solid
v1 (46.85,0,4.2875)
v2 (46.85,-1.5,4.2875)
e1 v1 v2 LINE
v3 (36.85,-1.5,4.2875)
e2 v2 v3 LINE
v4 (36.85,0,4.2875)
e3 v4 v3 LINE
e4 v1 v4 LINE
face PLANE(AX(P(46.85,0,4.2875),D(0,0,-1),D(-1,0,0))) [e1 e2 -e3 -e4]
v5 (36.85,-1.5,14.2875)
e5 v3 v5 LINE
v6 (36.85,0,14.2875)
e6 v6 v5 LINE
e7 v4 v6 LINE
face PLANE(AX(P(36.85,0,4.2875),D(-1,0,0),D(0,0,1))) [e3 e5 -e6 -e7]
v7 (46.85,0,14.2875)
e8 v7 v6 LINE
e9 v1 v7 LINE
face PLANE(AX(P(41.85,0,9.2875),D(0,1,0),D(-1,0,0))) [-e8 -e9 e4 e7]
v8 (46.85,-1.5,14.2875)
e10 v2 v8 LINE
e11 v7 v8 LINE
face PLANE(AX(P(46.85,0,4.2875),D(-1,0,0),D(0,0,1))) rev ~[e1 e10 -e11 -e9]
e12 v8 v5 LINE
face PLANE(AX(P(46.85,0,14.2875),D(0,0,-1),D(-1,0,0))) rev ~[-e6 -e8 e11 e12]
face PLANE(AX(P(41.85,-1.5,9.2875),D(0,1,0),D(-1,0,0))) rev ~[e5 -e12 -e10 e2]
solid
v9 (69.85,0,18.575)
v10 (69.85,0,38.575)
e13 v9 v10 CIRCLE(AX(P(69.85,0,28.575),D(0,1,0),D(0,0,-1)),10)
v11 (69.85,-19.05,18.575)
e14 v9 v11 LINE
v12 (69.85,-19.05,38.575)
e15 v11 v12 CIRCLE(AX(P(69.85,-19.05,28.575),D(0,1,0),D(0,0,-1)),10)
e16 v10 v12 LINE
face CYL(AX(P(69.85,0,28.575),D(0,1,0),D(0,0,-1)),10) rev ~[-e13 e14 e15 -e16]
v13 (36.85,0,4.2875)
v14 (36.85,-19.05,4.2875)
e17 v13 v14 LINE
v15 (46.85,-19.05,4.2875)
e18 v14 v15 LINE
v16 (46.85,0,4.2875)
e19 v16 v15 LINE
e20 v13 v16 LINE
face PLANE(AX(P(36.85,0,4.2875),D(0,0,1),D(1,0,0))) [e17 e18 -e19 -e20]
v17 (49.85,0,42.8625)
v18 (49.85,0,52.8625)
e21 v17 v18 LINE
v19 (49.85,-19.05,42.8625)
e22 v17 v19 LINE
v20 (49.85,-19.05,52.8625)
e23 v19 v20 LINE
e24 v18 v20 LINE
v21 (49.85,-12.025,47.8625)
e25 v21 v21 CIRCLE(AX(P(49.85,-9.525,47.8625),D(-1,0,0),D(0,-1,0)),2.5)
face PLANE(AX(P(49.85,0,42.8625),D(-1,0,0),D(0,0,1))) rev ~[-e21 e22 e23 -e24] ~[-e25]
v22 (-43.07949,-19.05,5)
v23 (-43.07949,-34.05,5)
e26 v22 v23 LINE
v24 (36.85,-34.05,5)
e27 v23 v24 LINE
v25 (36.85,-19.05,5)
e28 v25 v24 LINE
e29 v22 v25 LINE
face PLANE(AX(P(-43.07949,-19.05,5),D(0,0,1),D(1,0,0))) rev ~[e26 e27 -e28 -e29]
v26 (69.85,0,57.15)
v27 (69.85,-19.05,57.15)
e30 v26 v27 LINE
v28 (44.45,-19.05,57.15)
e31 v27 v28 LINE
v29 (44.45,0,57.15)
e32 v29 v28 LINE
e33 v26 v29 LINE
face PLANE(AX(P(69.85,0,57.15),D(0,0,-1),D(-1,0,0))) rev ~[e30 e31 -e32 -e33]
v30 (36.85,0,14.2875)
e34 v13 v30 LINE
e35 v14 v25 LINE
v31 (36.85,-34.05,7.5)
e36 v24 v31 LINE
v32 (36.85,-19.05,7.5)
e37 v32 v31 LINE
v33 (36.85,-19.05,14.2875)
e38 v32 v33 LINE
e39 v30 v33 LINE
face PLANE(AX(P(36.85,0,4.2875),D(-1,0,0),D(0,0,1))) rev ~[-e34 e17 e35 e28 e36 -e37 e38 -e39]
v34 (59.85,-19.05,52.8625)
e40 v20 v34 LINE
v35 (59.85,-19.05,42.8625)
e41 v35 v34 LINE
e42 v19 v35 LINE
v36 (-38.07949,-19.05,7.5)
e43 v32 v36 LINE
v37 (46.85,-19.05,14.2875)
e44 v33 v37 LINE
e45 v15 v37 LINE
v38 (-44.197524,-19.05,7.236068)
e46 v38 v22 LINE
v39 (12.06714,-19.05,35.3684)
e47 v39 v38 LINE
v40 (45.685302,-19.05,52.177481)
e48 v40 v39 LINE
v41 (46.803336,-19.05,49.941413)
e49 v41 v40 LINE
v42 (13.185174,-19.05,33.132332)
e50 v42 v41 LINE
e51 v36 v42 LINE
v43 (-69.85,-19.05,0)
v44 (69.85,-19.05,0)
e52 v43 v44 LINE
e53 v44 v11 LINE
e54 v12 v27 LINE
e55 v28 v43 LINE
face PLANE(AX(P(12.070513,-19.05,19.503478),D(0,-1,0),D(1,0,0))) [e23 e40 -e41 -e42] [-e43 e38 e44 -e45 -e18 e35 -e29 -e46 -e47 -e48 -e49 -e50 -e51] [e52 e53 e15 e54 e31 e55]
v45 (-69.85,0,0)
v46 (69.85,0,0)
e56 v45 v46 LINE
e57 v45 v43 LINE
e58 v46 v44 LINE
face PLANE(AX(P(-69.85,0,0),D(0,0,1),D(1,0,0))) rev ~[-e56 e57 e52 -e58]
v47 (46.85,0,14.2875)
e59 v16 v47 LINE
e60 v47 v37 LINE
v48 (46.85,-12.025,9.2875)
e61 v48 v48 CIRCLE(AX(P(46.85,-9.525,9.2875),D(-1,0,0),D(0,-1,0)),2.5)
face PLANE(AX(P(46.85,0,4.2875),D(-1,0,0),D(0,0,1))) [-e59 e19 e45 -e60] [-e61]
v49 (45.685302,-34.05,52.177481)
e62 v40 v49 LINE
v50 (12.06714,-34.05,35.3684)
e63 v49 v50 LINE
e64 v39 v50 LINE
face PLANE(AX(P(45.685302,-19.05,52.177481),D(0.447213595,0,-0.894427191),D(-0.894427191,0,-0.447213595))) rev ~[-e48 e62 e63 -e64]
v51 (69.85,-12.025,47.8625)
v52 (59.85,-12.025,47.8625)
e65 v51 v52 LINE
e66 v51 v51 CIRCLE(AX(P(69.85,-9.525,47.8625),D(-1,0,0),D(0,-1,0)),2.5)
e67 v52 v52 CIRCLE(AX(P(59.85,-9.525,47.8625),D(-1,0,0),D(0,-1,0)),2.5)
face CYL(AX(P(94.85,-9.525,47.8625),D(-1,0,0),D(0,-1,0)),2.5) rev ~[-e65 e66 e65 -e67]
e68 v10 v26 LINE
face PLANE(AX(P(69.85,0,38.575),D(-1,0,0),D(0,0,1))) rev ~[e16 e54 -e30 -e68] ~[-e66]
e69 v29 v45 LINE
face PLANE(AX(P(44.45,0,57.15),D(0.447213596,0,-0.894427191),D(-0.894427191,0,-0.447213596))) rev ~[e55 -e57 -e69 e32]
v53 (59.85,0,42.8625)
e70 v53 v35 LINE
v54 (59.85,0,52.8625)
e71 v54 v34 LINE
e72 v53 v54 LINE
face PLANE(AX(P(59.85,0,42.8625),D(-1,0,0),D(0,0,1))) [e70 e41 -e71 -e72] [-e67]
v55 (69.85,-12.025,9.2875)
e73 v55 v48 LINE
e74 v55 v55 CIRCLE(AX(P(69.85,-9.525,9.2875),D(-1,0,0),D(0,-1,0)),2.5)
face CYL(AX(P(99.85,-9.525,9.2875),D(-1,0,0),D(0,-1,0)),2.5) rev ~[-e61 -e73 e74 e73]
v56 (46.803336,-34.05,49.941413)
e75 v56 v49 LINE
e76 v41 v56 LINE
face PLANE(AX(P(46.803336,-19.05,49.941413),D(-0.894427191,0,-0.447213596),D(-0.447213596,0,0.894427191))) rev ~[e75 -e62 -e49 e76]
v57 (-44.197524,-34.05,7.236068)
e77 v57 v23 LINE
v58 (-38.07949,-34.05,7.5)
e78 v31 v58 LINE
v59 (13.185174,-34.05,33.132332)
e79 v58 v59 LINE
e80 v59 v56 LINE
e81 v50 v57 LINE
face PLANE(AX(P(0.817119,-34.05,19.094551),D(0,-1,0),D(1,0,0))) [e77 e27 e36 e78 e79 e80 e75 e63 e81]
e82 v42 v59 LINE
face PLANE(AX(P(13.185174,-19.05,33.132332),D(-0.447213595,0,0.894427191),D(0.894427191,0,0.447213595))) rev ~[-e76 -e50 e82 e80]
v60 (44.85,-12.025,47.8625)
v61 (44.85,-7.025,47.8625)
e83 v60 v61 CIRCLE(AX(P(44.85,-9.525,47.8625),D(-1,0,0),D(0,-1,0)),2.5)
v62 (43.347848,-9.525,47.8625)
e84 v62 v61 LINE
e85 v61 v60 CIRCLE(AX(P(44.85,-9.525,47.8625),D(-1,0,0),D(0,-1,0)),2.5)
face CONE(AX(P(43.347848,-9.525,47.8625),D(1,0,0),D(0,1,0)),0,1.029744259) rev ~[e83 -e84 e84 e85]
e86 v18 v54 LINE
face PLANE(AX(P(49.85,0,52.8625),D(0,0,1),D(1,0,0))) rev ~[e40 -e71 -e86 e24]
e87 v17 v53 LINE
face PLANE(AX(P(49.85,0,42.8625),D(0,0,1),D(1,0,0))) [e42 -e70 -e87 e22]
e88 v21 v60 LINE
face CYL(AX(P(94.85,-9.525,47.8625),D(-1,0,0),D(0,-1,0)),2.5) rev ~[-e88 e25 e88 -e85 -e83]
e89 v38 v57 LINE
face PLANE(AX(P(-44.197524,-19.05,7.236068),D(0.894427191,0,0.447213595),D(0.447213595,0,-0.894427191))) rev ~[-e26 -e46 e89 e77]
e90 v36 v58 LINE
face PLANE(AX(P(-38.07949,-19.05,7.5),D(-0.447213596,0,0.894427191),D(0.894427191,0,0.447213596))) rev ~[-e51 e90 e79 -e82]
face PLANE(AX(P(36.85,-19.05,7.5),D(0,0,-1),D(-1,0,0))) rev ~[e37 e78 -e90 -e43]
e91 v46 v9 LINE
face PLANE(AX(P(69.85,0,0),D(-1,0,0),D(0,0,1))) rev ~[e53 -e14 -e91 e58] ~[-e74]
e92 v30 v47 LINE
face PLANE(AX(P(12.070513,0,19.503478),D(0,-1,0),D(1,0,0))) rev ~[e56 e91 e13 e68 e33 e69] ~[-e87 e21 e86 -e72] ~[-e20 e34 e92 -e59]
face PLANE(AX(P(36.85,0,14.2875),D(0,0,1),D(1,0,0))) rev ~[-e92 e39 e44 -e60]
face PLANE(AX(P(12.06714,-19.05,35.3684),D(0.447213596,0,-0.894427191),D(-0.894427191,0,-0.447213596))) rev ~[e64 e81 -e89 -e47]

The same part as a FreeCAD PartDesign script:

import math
import FreeCAD as App
import Part
import Sketcher
Q = App.Units.Quantity

doc = App.newDocument("Part")
params = doc.addObject("Spreadsheet::Sheet", "Params")
for row, (alias, value) in enumerate([
    ("sketch1_radius", "10 mm"),
    ("sketch1_width", "10 mm"),
    ("sketch1_width2", "139.7 mm"),
    ("sketch1_width3", "25.4 mm"),
    ("pad1_length", "19.05 mm"),
    ("sketch2_height", "2.5 mm"),
    ("sketch2_length", "2.5 mm"),
    ("pad2_length", "15 mm"),
    ("sketch3_diameter", "5 mm"),
    ("hole_diameter", "5 mm"),
    ("hole_depth", "30 mm"),
    ("sketch4_diameter", "5 mm"),
    ("hole2_diameter", "5 mm"),
    ("hole2_depth", "25 mm"),
    ("sketch5_width", "10 mm"),
    ("pad3_length", "1.5 mm"),
], start=1):
    params.set(f"A{row}", alias)
    params.set(f"B{row}", "=" + value)
    params.setAlias(f"B{row}", alias)

body = doc.addObject("PartDesign::Body", "Body")

sketch1 = body.newObject("Sketcher::SketchObject", "Sketch")
sketch1.AttachmentSupport = (doc.getObject("XZ_Plane"), [""])
sketch1.MapMode = "FlatFace"
sketch1.addGeometry(Part.LineSegment(App.Vector(44, 57, 0), App.Vector(-70, 0, 0)), False)
sketch1.addGeometry(Part.LineSegment(App.Vector(-70, 0, 0), App.Vector(70, 0, 0)), False)
sketch1.addGeometry(Part.LineSegment(App.Vector(70, 0, 0), App.Vector(70, 19, 0)), False)
sketch1.addGeometry(Part.ArcOfCircle(Part.Circle(App.Vector(70, 29, 0), App.Vector(0, 0, 1), 10), math.radians(90), math.radians(270)), False)
sketch1.addGeometry(Part.LineSegment(App.Vector(70, 39, 0), App.Vector(70, 57, 0)), False)
sketch1.addGeometry(Part.LineSegment(App.Vector(70, 57, 0), App.Vector(44, 57, 0)), False)
sketch1.addGeometry(Part.LineSegment(App.Vector(47, 4, 0), App.Vector(37, 4, 0)), False)
sketch1.addGeometry(Part.LineSegment(App.Vector(37, 4, 0), App.Vector(37, 14, 0)), False)
sketch1.addGeometry(Part.LineSegment(App.Vector(37, 14, 0), App.Vector(47, 14, 0)), False)
sketch1.addGeometry(Part.LineSegment(App.Vector(47, 14, 0), App.Vector(47, 4, 0)), False)
sketch1.addGeometry(Part.LineSegment(App.Vector(60, 43, 0), App.Vector(50, 43, 0)), False)
sketch1.addGeometry(Part.LineSegment(App.Vector(50, 43, 0), App.Vector(50, 53, 0)), False)
sketch1.addGeometry(Part.LineSegment(App.Vector(50, 53, 0), App.Vector(60, 53, 0)), False)
sketch1.addGeometry(Part.LineSegment(App.Vector(60, 53, 0), App.Vector(60, 43, 0)), False)
sketch1.addConstraint(Sketcher.Constraint("Coincident", 0, 2, 1, 1))
sketch1.addConstraint(Sketcher.Constraint("Coincident", 1, 2, 2, 1))
sketch1.addConstraint(Sketcher.Constraint("Coincident", 2, 2, 3, 2))
sketch1.addConstraint(Sketcher.Constraint("Coincident", 3, 1, 4, 1))
sketch1.addConstraint(Sketcher.Constraint("Coincident", 4, 2, 5, 1))
sketch1.addConstraint(Sketcher.Constraint("Coincident", 5, 2, 0, 1))
sketch1.addConstraint(Sketcher.Constraint("Coincident", 6, 2, 7, 1))
sketch1.addConstraint(Sketcher.Constraint("Coincident", 7, 2, 8, 1))
sketch1.addConstraint(Sketcher.Constraint("Coincident", 8, 2, 9, 1))
sketch1.addConstraint(Sketcher.Constraint("Coincident", 9, 2, 6, 1))
sketch1.addConstraint(Sketcher.Constraint("Coincident", 10, 2, 11, 1))
sketch1.addConstraint(Sketcher.Constraint("Coincident", 11, 2, 12, 1))
sketch1.addConstraint(Sketcher.Constraint("Coincident", 12, 2, 13, 1))
sketch1.addConstraint(Sketcher.Constraint("Coincident", 13, 2, 10, 1))
sketch1.addConstraint(Sketcher.Constraint("Horizontal", 1))
sketch1.addConstraint(Sketcher.Constraint("Vertical", 2))
sketch1.addConstraint(Sketcher.Constraint("Vertical", 4))
sketch1.addConstraint(Sketcher.Constraint("Horizontal", 5))
sketch1.addConstraint(Sketcher.Constraint("Horizontal", 6))
sketch1.addConstraint(Sketcher.Constraint("Vertical", 7))
sketch1.addConstraint(Sketcher.Constraint("Horizontal", 8))
sketch1.addConstraint(Sketcher.Constraint("Vertical", 9))
sketch1.addConstraint(Sketcher.Constraint("Horizontal", 10))
sketch1.addConstraint(Sketcher.Constraint("Vertical", 11))
sketch1.addConstraint(Sketcher.Constraint("Horizontal", 12))
sketch1.addConstraint(Sketcher.Constraint("Vertical", 13))
sketch1.addConstraint(Sketcher.Constraint("Symmetric", 0, 2, 1, 2, -1, 1))
sketch1.addConstraint(Sketcher.Constraint("Vertical", 3, 3, 1, 2))
sketch1.addConstraint(Sketcher.Constraint("Vertical", 2, 2, 3, 1))
sketch1.addConstraint(Sketcher.Constraint("Equal", 8, 10))
sketch1.addConstraint(Sketcher.Constraint("Equal", 2, 4))
sketch1.addConstraint(Sketcher.Constraint("Equal", 12, 7))
sketch1.addConstraint(Sketcher.Constraint("Equal", 9, 11))
sketch1.addConstraint(Sketcher.Constraint("Radius", 3, Q("10 mm")))
sketch1.addConstraint(Sketcher.Constraint("DistanceX", 6, 2, 6, 1, Q("10 mm")))
sketch1.addConstraint(Sketcher.Constraint("DistanceX", 1, 1, 1, 2, Q("139.7 mm")))
sketch1.addConstraint(Sketcher.Constraint("DistanceX", 5, 2, 5, 1, Q("25.4 mm")))
sketch1.addConstraint(Sketcher.Constraint("DistanceX", 6, 2, 1, 2, Q("33 mm")))
sketch1.addConstraint(Sketcher.Constraint("DistanceX", 10, 2, 3, 1, Q("20 mm")))
sketch1.addConstraint(Sketcher.Constraint("DistanceY", 2, 1, 2, 2, Q("18.575 mm")))
sketch1.addConstraint(Sketcher.Constraint("DistanceY", 8, 2, 10, 2, Q("28.575 mm")))
sketch1.addConstraint(Sketcher.Constraint("DistanceY", -1, 1, 6, 2, Q("4.2875 mm")))
sketch1.setExpression("Constraints[33]", "Params.sketch1_radius")
sketch1.setExpression("Constraints[34]", "Params.sketch1_width")
sketch1.setExpression("Constraints[35]", "Params.sketch1_width2")
sketch1.setExpression("Constraints[36]", "Params.sketch1_width3")
pad1 = body.newObject("PartDesign::Pad", "Pad")
pad1.Profile = sketch1
pad1.setExpression("Length", "Params.pad1_length")

sketch2 = body.newObject("Sketcher::SketchObject", "Sketch001")
sketch2.AttachmentSupport = (doc.getObject("XZ_Plane"), [""])
sketch2.MapMode = "FlatFace"
sketch2.AttachmentOffset = App.Placement(App.Vector(0, 0, 19.05), App.Rotation())
sketch2.addGeometry(Part.LineSegment(App.Vector(45.7, 52.2, 0), App.Vector(12.1, 35.4, 0)), False)
sketch2.addGeometry(Part.LineSegment(App.Vector(12.1, 35.4, 0), App.Vector(-44.2, 7.2, 0)), False)
sketch2.addGeometry(Part.LineSegment(App.Vector(-44.2, 7.2, 0), App.Vector(-43.1, 5, 0)), False)
sketch2.addGeometry(Part.LineSegment(App.Vector(-43.1, 5, 0), App.Vector(36.9, 5, 0)), False)
sketch2.addGeometry(Part.LineSegment(App.Vector(36.9, 5, 0), App.Vector(36.9, 7.5, 0)), False)
sketch2.addGeometry(Part.LineSegment(App.Vector(36.9, 7.5, 0), App.Vector(-38.1, 7.5, 0)), False)
sketch2.addGeometry(Part.LineSegment(App.Vector(-38.1, 7.5, 0), App.Vector(13.2, 33.1, 0)), False)
sketch2.addGeometry(Part.LineSegment(App.Vector(13.2, 33.1, 0), App.Vector(46.8, 49.9, 0)), False)
sketch2.addGeometry(Part.LineSegment(App.Vector(46.8, 49.9, 0), App.Vector(45.7, 52.2, 0)), False)
sketch2.addConstraint(Sketcher.Constraint("Coincident", 0, 2, 1, 1))
sketch2.addConstraint(Sketcher.Constraint("Coincident", 1, 2, 2, 1))
sketch2.addConstraint(Sketcher.Constraint("Coincident", 2, 2, 3, 1))
sketch2.addConstraint(Sketcher.Constraint("Coincident", 3, 2, 4, 1))
sketch2.addConstraint(Sketcher.Constraint("Coincident", 4, 2, 5, 1))
sketch2.addConstraint(Sketcher.Constraint("Coincident", 5, 2, 6, 1))
sketch2.addConstraint(Sketcher.Constraint("Coincident", 6, 2, 7, 1))
sketch2.addConstraint(Sketcher.Constraint("Coincident", 7, 2, 8, 1))
sketch2.addConstraint(Sketcher.Constraint("Coincident", 8, 2, 0, 1))
sketch2.addConstraint(Sketcher.Constraint("Horizontal", 3))
sketch2.addConstraint(Sketcher.Constraint("Vertical", 4))
sketch2.addConstraint(Sketcher.Constraint("Horizontal", 5))
sketch2.addConstraint(Sketcher.Constraint("Parallel", 0, 1))
sketch2.addConstraint(Sketcher.Constraint("Perpendicular", 1, 2))
sketch2.addConstraint(Sketcher.Constraint("Perpendicular", 2, 6))
sketch2.addConstraint(Sketcher.Constraint("Parallel", 6, 7))
sketch2.addConstraint(Sketcher.Constraint("Perpendicular", 7, 8))
sketch2.addConstraint(Sketcher.Constraint("Equal", 0, 7))
sketch2.addConstraint(Sketcher.Constraint("Equal", 2, 8))
sketch2.addConstraint(Sketcher.Constraint("DistanceY", 4, 1, 4, 2, Q("2.5 mm")))
sketch2.addConstraint(Sketcher.Constraint("DistanceY", -1, 1, 2, 2, Q("5 mm")))
sketch2.addConstraint(Sketcher.Constraint("DistanceX", 2, 2, 5, 2, Q("5 mm")))
sketch2.addConstraint(Sketcher.Constraint("Distance", 2, Q("2.5 mm")))
sketch2.addConstraint(Sketcher.Constraint("DistanceX", -1, 1, 3, 2, Q("36.85 mm")))
sketch2.addConstraint(Sketcher.Constraint("DistanceX", 3, 1, 3, 2, Q("79.92949 mm")))
sketch2.addConstraint(Sketcher.Constraint("DistanceY", -1, 1, 0, 2, Q("35.3684 mm")))
sketch2.addConstraint(Sketcher.Constraint("DistanceX", -1, 1, 8, 2, Q("45.685302 mm")))
sketch2.setExpression("Constraints[19]", "Params.sketch2_height")
sketch2.setExpression("Constraints[22]", "Params.sketch2_length")
pad2 = body.newObject("PartDesign::Pad", "Pad001")
pad2.Profile = sketch2
pad2.setExpression("Length", "Params.pad2_length")

sketch3 = body.newObject("Sketcher::SketchObject", "Sketch002")
sketch3.AttachmentSupport = (doc.getObject("YZ_Plane"), [""])
sketch3.MapMode = "FlatFace"
sketch3.AttachmentOffset = App.Placement(App.Vector(0, 0, 69.85), App.Rotation())
sketch3.addGeometry(Part.Circle(App.Vector(-9.5, 9.3, 0), App.Vector(0, 0, 1), 2.5), False)
sketch3.addConstraint(Sketcher.Constraint("Diameter", 0, Q("5 mm")))
sketch3.addConstraint(Sketcher.Constraint("DistanceX", 0, 3, -1, 1, Q("9.525 mm")))
sketch3.addConstraint(Sketcher.Constraint("DistanceY", -1, 1, 0, 3, Q("9.2875 mm")))
sketch3.setExpression("Constraints[0]", "Params.sketch3_diameter")
doc.recompute()
hole = body.newObject("PartDesign::Hole", "Hole")
hole.Profile = sketch3
hole.ThreadType = "None"
hole.setExpression("Diameter", "Params.hole_diameter")
hole.DepthType = "Dimension"
hole.setExpression("Depth", "Params.hole_depth")
hole.DrillPoint = "Angled"
hole.DrillPointAngle = 118

sketch4 = body.newObject("Sketcher::SketchObject", "Sketch003")
sketch4.AttachmentSupport = (doc.getObject("YZ_Plane"), [""])
sketch4.MapMode = "FlatFace"
sketch4.AttachmentOffset = App.Placement(App.Vector(0, 0, 69.85), App.Rotation())
sketch4.addGeometry(Part.Circle(App.Vector(-9.5, 47.9, 0), App.Vector(0, 0, 1), 2.5), False)
sketch4.addConstraint(Sketcher.Constraint("Diameter", 0, Q("5 mm")))
sketch4.addConstraint(Sketcher.Constraint("DistanceX", 0, 3, -1, 1, Q("9.525 mm")))
sketch4.addConstraint(Sketcher.Constraint("DistanceY", -1, 1, 0, 3, Q("47.8625 mm")))
sketch4.setExpression("Constraints[0]", "Params.sketch4_diameter")
doc.recompute()
hole2 = body.newObject("PartDesign::Hole", "Hole001")
hole2.Profile = sketch4
hole2.ThreadType = "None"
hole2.setExpression("Diameter", "Params.hole2_diameter")
hole2.DepthType = "Dimension"
hole2.setExpression("Depth", "Params.hole2_depth")
hole2.DrillPoint = "Angled"
hole2.DrillPointAngle = 118
body2 = doc.addObject("PartDesign::Body", "Body001")

sketch5 = body2.newObject("Sketcher::SketchObject", "Sketch004")
sketch5.AttachmentSupport = (doc.getObject("XZ_Plane001"), [""])
sketch5.MapMode = "FlatFace"
sketch5.addGeometry(Part.LineSegment(App.Vector(47, 14, 0), App.Vector(47, 4, 0)), False)
sketch5.addGeometry(Part.LineSegment(App.Vector(47, 4, 0), App.Vector(37, 4, 0)), False)
sketch5.addGeometry(Part.LineSegment(App.Vector(37, 4, 0), App.Vector(37, 14, 0)), False)
sketch5.addGeometry(Part.LineSegment(App.Vector(37, 14, 0), App.Vector(47, 14, 0)), False)
sketch5.addConstraint(Sketcher.Constraint("Coincident", 0, 2, 1, 1))
sketch5.addConstraint(Sketcher.Constraint("Coincident", 1, 2, 2, 1))
sketch5.addConstraint(Sketcher.Constraint("Coincident", 2, 2, 3, 1))
sketch5.addConstraint(Sketcher.Constraint("Coincident", 3, 2, 0, 1))
sketch5.addConstraint(Sketcher.Constraint("Vertical", 0))
sketch5.addConstraint(Sketcher.Constraint("Horizontal", 1))
sketch5.addConstraint(Sketcher.Constraint("Vertical", 2))
sketch5.addConstraint(Sketcher.Constraint("Horizontal", 3))
sketch5.addConstraint(Sketcher.Constraint("Equal", 3, 0))
sketch5.addConstraint(Sketcher.Constraint("DistanceX", 1, 2, 1, 1, Q("10 mm")))
sketch5.addConstraint(Sketcher.Constraint("DistanceX", -1, 1, 0, 2, Q("46.85 mm")))
sketch5.addConstraint(Sketcher.Constraint("DistanceY", -1, 1, 0, 2, Q("4.2875 mm")))
sketch5.setExpression("Constraints[9]", "Params.sketch5_width")
pad3 = body2.newObject("PartDesign::Pad", "Pad002")
pad3.Profile = sketch5
pad3.setExpression("Length", "Params.pad3_length")

doc.recompute()
